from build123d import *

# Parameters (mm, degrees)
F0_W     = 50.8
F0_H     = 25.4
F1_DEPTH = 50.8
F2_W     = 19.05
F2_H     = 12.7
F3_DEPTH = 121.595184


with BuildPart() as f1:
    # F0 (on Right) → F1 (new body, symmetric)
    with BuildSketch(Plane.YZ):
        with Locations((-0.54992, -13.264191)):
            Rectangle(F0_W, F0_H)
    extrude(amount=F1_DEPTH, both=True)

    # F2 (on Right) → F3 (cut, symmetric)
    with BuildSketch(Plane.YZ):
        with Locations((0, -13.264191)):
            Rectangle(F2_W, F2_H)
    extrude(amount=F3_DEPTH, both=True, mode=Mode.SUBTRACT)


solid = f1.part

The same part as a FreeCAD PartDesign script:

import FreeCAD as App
import Part
import Sketcher
from FreeCAD import Vector
Q = App.Units.Quantity

doc = App.newDocument("Part")
params = doc.addObject("Spreadsheet::Sheet", "Params")
for row, (alias, value) in enumerate([
    ("sketch1_width", "2 in"),
    ("sketch1_height", "1 in"),
    ("pad1_length", "4 in"),
    ("sketch2_height", "0.5 in"),
    ("sketch2_width", "0.75 in"),
    ("pocket1_length", "243.190368 mm"),
], start=1):
    params.set(f"A{row}", alias)
    params.set(f"B{row}", "=" + value)
    params.setAlias(f"B{row}", alias)

body = doc.addObject("PartDesign::Body", "Body")

# Sketch on YZ plane
sketch1 = body.newObject("Sketcher::SketchObject", "Sketch")
sketch1.AttachmentSupport = (doc.getObject("YZ_Plane"), [""])
sketch1.MapMode = "FlatFace"
sketch1.addGeometry([
    Part.LineSegment(Vector(-26, -1, 0), Vector(-26, -26, 0)),
    Part.LineSegment(Vector(-26, -26, 0), Vector(25, -26, 0)),
    Part.LineSegment(Vector(25, -26, 0), Vector(25, -1, 0)),
    Part.LineSegment(Vector(25, -1, 0), Vector(-26, -1, 0)),
], False)
sketch1.addConstraint([
    Sketcher.Constraint("Coincident", 0, 2, 1, 1),
    Sketcher.Constraint("Coincident", 1, 2, 2, 1),
    Sketcher.Constraint("Coincident", 2, 2, 3, 1),
    Sketcher.Constraint("Coincident", 3, 2, 0, 1),
    Sketcher.Constraint("Vertical", 0),
    Sketcher.Constraint("Horizontal", 1),
    Sketcher.Constraint("Vertical", 2),
    Sketcher.Constraint("Horizontal", 3),
    Sketcher.Constraint("DistanceX", 1, 1, 1, 2, Q("2 in")),
    Sketcher.Constraint("DistanceY", 0, 2, 0, 1, Q("1 in")),
    Sketcher.Constraint("DistanceX", 0, 2, -1, 1, Q("25.94992 mm")),
    Sketcher.Constraint("DistanceY", 0, 2, -1, 1, Q("25.964191 mm")),
])
sketch1.setExpression("Constraints[8]", "Params.sketch1_width")
sketch1.setExpression("Constraints[9]", "Params.sketch1_height")
pad1 = body.newObject("PartDesign::Pad", "Pad")
pad1.Profile = sketch1
pad1.setExpression("Length", "Params.pad1_length")
pad1.Midplane = True

# Sketch on YZ plane
sketch2 = body.newObject("Sketcher::SketchObject", "Sketch001")
sketch2.AttachmentSupport = (doc.getObject("YZ_Plane"), [""])
sketch2.MapMode = "FlatFace"
sketch2.addGeometry([
    Part.LineSegment(Vector(-10, -7, 0), Vector(-10, -20, 0)),
    Part.LineSegment(Vector(-10, -20, 0), Vector(10, -20, 0)),
    Part.LineSegment(Vector(10, -20, 0), Vector(10, -7, 0)),
    Part.LineSegment(Vector(10, -7, 0), Vector(-10, -7, 0)),
], False)
sketch2.addConstraint([
    Sketcher.Constraint("Coincident", 0, 2, 1, 1),
    Sketcher.Constraint("Coincident", 1, 2, 2, 1),
    Sketcher.Constraint("Coincident", 2, 2, 3, 1),
    Sketcher.Constraint("Coincident", 3, 2, 0, 1),
    Sketcher.Constraint("Vertical", 0),
    Sketcher.Constraint("Horizontal", 1),
    Sketcher.Constraint("Vertical", 2),
    Sketcher.Constraint("Horizontal", 3),
    Sketcher.Constraint("DistanceY", 0, 2, 0, 1, Q("0.5 in")),
    Sketcher.Constraint("DistanceX", 1, 1, 1, 2, Q("0.75 in")),
    Sketcher.Constraint("DistanceX", 0, 2, -1, 1, Q("0.375 in")),
    Sketcher.Constraint("DistanceY", 0, 2, -1, 1, Q("19.614191 mm")),
])
sketch2.setExpression("Constraints[8]", "Params.sketch2_height")
sketch2.setExpression("Constraints[9]", "Params.sketch2_width")
pocket1 = body.newObject("PartDesign::Pocket", "Pocket")
pocket1.Profile = sketch2
pocket1.setExpression("Length", "Params.pocket1_length")
pocket1.Midplane = True

doc.recompute()
